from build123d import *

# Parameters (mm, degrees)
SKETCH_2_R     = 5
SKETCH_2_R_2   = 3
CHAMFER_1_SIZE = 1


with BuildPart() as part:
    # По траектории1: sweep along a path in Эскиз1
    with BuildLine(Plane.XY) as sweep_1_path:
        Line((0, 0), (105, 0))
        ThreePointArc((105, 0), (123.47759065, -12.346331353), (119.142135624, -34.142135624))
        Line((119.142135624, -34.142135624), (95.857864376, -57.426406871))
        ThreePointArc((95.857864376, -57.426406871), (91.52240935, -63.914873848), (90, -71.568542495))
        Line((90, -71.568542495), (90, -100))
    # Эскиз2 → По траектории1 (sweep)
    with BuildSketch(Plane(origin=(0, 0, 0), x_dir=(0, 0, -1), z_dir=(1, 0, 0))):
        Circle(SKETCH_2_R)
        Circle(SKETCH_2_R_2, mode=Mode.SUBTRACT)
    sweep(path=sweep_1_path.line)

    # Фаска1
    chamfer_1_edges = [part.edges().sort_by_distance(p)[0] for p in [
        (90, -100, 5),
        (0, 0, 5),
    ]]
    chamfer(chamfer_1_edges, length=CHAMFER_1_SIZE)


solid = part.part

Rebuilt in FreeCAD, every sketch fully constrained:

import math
import FreeCAD as App
import Part
import Sketcher

V = App.Vector
Q = App.Units.Quantity


def edges_at(feature, points):
    """Names of the edges that pass closest to the given points."""
    edges = feature.Shape.Edges
    near = lambda p: min(range(len(edges)), key=lambda i: edges[i].distToShape(Part.Vertex(*p))[0])
    return sorted({f"Edge{near(p) + 1}" for p in points})

doc = App.newDocument("Part")
params = doc.addObject("Spreadsheet::Sheet", "Params")
for row, (alias, value) in enumerate([
    ("sketch1_diameter", "10 mm"),
    ("sketch1_diameter2", "6 mm"),
    ("sketch2_radius", "20 mm"),
    ("sketch2_width", "105 mm"),
    ("chamfer_size", "1 mm"),
], start=1):
    params.set(f"A{row}", alias)
    params.set(f"B{row}", "=" + value)
    params.setAlias(f"B{row}", alias)

body = doc.addObject("PartDesign::Body", "Body")

# Sketch on YZ plane
sketch1 = body.newObject("Sketcher::SketchObject", "Sketch")
sketch1.AttachmentSupport = (doc.getObject("YZ_Plane"), [""])
sketch1.MapMode = "FlatFace"
sketch1.addGeometry([
    Part.Circle(V(0, 0, 0), V(0, 0, 1), 5),
    Part.Circle(V(0, 0, 0), V(0, 0, 1), 3),
], False)
sketch1.addConstraint([
    Sketcher.Constraint("Coincident", 0, 3, -1, 1),
    Sketcher.Constraint("Coincident", 1, 3, -1, 1),
    Sketcher.Constraint("Diameter", 0, 10.0),
    Sketcher.Constraint("Diameter", 1, 6.0),
])
sketch1.setExpression("Constraints[2]", "Params.sketch1_diameter")
sketch1.setExpression("Constraints[3]", "Params.sketch1_diameter2")

# Sketch on XY plane
sketch2 = body.newObject("Sketcher::SketchObject", "Sketch001")
sketch2.AttachmentSupport = (doc.getObject("XY_Plane"), [""])
sketch2.MapMode = "FlatFace"
sketch2.addGeometry([
    Part.LineSegment(V(0, 0, 0), V(105, 0, 0)),  # 0
    Part.ArcOfCircle(Part.Circle(V(105, -20, 0), V(0, 0, 1), 20), math.radians(-45), math.radians(90)),  # 1
    Part.LineSegment(V(119, -34, 0), V(96, -57, 0)),  # 2
    Part.ArcOfCircle(Part.Circle(V(110, -72, 0), V(0, 0, 1), 20), math.radians(135), math.radians(180)),  # 3
    Part.LineSegment(V(90, -72, 0), V(90, -100, 0)),  # 4
], False)
sketch2.addConstraint([
    Sketcher.Constraint("Tangent", 0, 2, 1, 2),
    Sketcher.Constraint("Tangent", 1, 1, 2, 1),
    Sketcher.Constraint("Tangent", 2, 2, 3, 1),
    Sketcher.Constraint("Tangent", 3, 2, 4, 1),
    Sketcher.Constraint("Horizontal", 0),
    Sketcher.Constraint("Vertical", 4),
    Sketcher.Constraint("Coincident", 0, 1, -1, 1),
    Sketcher.Constraint("Equal", 1, 3),
    Sketcher.Constraint("Radius", 1, 20.0),
    Sketcher.Constraint("DistanceX", 0, 1, 0, 2, 105.0),
    Sketcher.Constraint("Angle", 2, Q("-135 deg")),
    Sketcher.Constraint("DistanceX", -1, 1, 3, 3, 110.0),
    Sketcher.Constraint("DistanceY", 4, 2, -1, 1, 100.0),
])
sketch2.setExpression("Constraints[8]", "Params.sketch2_radius")
sketch2.setExpression("Constraints[9]", "Params.sketch2_width")
doc.recompute()

additivepipe = body.newObject("PartDesign::AdditivePipe", "AdditivePipe")
additivepipe.Profile = sketch1
additivepipe.Spine = (sketch2, ["Edge1", "Edge2", "Edge3", "Edge4", "Edge5"])
doc.recompute()

chamfer = body.newObject("PartDesign::Chamfer", "Chamfer")
chamfer.Base = (additivepipe, edges_at(additivepipe, [(90, -100, 5), (0, 0, 5)]))
chamfer.setExpression("Size", "Params.chamfer_size")

doc.recompute()
